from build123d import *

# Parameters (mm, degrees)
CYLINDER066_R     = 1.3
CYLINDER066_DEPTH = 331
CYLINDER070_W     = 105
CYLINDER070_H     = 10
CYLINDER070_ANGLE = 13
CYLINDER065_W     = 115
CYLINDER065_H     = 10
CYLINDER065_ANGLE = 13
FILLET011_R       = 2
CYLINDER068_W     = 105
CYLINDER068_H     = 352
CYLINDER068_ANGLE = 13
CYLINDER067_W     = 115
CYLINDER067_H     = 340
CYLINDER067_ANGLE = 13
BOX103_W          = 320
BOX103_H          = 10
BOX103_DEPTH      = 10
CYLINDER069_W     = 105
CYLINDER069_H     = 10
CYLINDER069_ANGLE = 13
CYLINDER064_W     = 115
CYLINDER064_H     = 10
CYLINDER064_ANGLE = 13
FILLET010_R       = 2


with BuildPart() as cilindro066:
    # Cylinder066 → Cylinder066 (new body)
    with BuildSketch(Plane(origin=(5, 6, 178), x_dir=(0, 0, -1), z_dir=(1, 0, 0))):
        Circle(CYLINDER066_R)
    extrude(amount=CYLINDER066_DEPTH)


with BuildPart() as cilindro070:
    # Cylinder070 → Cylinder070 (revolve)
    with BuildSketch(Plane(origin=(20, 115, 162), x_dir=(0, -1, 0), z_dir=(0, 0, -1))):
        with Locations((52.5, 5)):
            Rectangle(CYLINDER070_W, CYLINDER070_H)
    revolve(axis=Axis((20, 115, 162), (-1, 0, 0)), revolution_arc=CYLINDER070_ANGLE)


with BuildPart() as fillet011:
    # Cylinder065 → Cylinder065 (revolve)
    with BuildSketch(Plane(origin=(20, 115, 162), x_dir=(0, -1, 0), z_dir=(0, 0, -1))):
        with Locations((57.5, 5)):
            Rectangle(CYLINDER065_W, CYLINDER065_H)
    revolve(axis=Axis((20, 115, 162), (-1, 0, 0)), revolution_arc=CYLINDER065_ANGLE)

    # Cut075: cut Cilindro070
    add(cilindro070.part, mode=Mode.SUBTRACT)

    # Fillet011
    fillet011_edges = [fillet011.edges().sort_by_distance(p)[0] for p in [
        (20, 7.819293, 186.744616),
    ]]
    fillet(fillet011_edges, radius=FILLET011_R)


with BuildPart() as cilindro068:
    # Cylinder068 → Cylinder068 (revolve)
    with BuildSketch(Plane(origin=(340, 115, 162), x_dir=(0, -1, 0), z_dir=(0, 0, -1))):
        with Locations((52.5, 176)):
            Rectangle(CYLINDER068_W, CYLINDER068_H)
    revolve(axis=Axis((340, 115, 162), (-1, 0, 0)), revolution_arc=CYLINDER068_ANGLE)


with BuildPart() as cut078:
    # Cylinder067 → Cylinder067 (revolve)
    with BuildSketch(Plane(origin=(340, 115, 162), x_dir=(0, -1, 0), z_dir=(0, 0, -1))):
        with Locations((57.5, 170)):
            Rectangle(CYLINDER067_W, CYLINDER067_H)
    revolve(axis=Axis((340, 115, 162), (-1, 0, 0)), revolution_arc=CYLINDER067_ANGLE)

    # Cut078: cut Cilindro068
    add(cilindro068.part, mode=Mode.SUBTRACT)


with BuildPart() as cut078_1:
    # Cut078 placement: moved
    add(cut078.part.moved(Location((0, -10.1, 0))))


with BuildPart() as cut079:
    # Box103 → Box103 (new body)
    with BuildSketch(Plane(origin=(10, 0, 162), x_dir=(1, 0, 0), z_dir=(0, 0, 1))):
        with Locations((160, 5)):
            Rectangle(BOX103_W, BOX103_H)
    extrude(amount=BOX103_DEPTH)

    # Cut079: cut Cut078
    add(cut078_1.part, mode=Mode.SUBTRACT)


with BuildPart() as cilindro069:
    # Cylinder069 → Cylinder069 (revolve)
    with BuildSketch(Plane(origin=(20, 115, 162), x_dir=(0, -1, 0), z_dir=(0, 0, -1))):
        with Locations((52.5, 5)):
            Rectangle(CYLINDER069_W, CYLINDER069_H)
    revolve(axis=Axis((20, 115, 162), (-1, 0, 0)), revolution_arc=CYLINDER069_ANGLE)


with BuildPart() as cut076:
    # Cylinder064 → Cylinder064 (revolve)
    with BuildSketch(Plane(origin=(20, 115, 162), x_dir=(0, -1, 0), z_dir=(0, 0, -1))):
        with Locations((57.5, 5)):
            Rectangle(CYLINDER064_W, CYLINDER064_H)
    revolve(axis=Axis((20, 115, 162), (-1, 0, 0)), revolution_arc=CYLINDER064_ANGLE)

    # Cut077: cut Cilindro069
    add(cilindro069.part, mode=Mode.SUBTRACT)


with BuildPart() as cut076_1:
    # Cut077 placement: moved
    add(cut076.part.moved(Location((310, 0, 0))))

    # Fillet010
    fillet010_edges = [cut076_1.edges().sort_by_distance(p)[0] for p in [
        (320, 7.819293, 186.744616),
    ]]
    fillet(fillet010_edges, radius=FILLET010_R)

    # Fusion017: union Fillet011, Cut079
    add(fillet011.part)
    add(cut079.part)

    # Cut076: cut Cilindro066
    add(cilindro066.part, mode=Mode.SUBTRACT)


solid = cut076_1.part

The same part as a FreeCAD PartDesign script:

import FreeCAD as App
import Part
import Sketcher

V = App.Vector
Q = App.Units.Quantity


def edges_at(feature, points):
    """Names of the edges that pass closest to the given points."""
    edges = feature.Shape.Edges
    near = lambda p: min(range(len(edges)), key=lambda i: edges[i].distToShape(Part.Vertex(*p))[0])
    return sorted({f"Edge{near(p) + 1}" for p in points})

doc = App.newDocument("Part")
body = doc.addObject("PartDesign::Body", "Body")

sketch1 = doc.addObject("Sketcher::SketchObject", "Sketch")
body.addObject(sketch1)
sketch1.AttachmentSupport = (doc.YZ_Plane, [""])
sketch1.MapMode = "FlatFace"
sketch1.AttachmentOffset = App.Placement(V(0, 0, 5), App.Rotation())
sketch1.addGeometry(Part.Circle(V(6, 178, 0), V(0, 0, 1), 1.3), False)
sketch1.addConstraint(Sketcher.Constraint("Diameter", 0, Q("2.6 mm")))
sketch1.addConstraint(Sketcher.Constraint("DistanceX", -1, 1, 0, 3, Q("6 mm")))
sketch1.addConstraint(Sketcher.Constraint("DistanceY", -1, 1, 0, 3, Q("178 mm")))
pad1 = doc.addObject("PartDesign::Pad", "Pad")
body.addObject(pad1)
pad1.Profile = sketch1
pad1.Length = 331
body2 = doc.addObject("PartDesign::Body", "Body001")

sketch2 = doc.addObject("Sketcher::SketchObject", "Sketch001")
body2.addObject(sketch2)
sketch2.AttachmentSupport = (doc.getObject("XY_Plane001"), [""])
sketch2.MapMode = "FlatFace"
sketch2.AttachmentOffset = App.Placement(V(0, 0, 162), App.Rotation())
sketch2.addGeometry(Part.LineSegment(V(10, 115, 0), V(20, 115, 0)), False)
sketch2.addGeometry(Part.LineSegment(V(20, 115, 0), V(20, 10, 0)), False)
sketch2.addGeometry(Part.LineSegment(V(20, 10, 0), V(10, 10, 0)), False)
sketch2.addGeometry(Part.LineSegment(V(10, 10, 0), V(10, 115, 0)), False)
sketch2.addGeometry(Part.LineSegment(V(20, 115, 0), V(10, 115, 0)), True)
sketch2.addConstraint(Sketcher.Constraint("Coincident", 0, 2, 1, 1))
sketch2.addConstraint(Sketcher.Constraint("Coincident", 1, 2, 2, 1))
sketch2.addConstraint(Sketcher.Constraint("Coincident", 2, 2, 3, 1))
sketch2.addConstraint(Sketcher.Constraint("Coincident", 3, 2, 0, 1))
sketch2.addConstraint(Sketcher.Constraint("Horizontal", 0))
sketch2.addConstraint(Sketcher.Constraint("Vertical", 1))
sketch2.addConstraint(Sketcher.Constraint("Horizontal", 2))
sketch2.addConstraint(Sketcher.Constraint("Vertical", 3))
sketch2.addConstraint(Sketcher.Constraint("Horizontal", 4))
sketch2.addConstraint(Sketcher.Constraint("Coincident", 4, 1, 0, 2))
sketch2.addConstraint(Sketcher.Constraint("Vertical", 2, 2, 4, 2))
sketch2.addConstraint(Sketcher.Constraint("DistanceX", 0, 1, 0, 2, Q("10 mm")))
sketch2.addConstraint(Sketcher.Constraint("DistanceY", 1, 2, 1, 1, Q("105 mm")))
sketch2.addConstraint(Sketcher.Constraint("DistanceX", -1, 1, 0, 2, Q("20 mm")))
sketch2.addConstraint(Sketcher.Constraint("DistanceY", -1, 1, 0, 2, Q("115 mm")))
revolution = doc.addObject("PartDesign::Revolution", "Revolution")
body2.addObject(revolution)
revolution.Profile = sketch2
revolution.ReferenceAxis = (sketch2, ["Axis0"])
revolution.Angle = 13
body3 = doc.addObject("PartDesign::Body", "Body002")

sketch3 = doc.addObject("Sketcher::SketchObject", "Sketch002")
body3.addObject(sketch3)
sketch3.AttachmentSupport = (doc.getObject("XY_Plane002"), [""])
sketch3.MapMode = "FlatFace"
sketch3.AttachmentOffset = App.Placement(V(0, 0, 162), App.Rotation())
sketch3.addGeometry(Part.LineSegment(V(10, 115, 0), V(20, 115, 0)), False)
sketch3.addGeometry(Part.LineSegment(V(20, 115, 0), V(20, 0, 0)), False)
sketch3.addGeometry(Part.LineSegment(V(20, 0, 0), V(10, 0, 0)), False)
sketch3.addGeometry(Part.LineSegment(V(10, 0, 0), V(10, 115, 0)), False)
sketch3.addGeometry(Part.LineSegment(V(20, 115, 0), V(10, 115, 0)), True)
sketch3.addConstraint(Sketcher.Constraint("Coincident", 0, 2, 1, 1))
sketch3.addConstraint(Sketcher.Constraint("Coincident", 1, 2, 2, 1))
sketch3.addConstraint(Sketcher.Constraint("Coincident", 2, 2, 3, 1))
sketch3.addConstraint(Sketcher.Constraint("Coincident", 3, 2, 0, 1))
sketch3.addConstraint(Sketcher.Constraint("Horizontal", 0))
sketch3.addConstraint(Sketcher.Constraint("Vertical", 1))
sketch3.addConstraint(Sketcher.Constraint("Horizontal", 2))
sketch3.addConstraint(Sketcher.Constraint("Vertical", 3))
sketch3.addConstraint(Sketcher.Constraint("Horizontal", 4))
sketch3.addConstraint(Sketcher.Constraint("Coincident", 4, 1, 0, 2))
sketch3.addConstraint(Sketcher.Constraint("PointOnObject", 1, 2, -1))
sketch3.addConstraint(Sketcher.Constraint("Vertical", 2, 2, 4, 2))
sketch3.addConstraint(Sketcher.Constraint("DistanceX", 0, 1, 0, 2, Q("10 mm")))
sketch3.addConstraint(Sketcher.Constraint("DistanceY", 1, 2, 1, 1, Q("115 mm")))
sketch3.addConstraint(Sketcher.Constraint("DistanceX", -1, 1, 0, 2, Q("20 mm")))
revolution2 = doc.addObject("PartDesign::Revolution", "Revolution001")
body3.addObject(revolution2)
revolution2.Profile = sketch3
revolution2.ReferenceAxis = (sketch3, ["Axis0"])
revolution2.Angle = 13
doc.recompute()

boolean = doc.addObject("PartDesign::Boolean", "Boolean")
body3.addObject(boolean)
boolean.Type = "Cut"
boolean.addObjects([body2])
doc.recompute()

fillet = doc.addObject("PartDesign::Fillet", "Fillet")
body3.addObject(fillet)
fillet.Base = (boolean, edges_at(boolean, [(20, 7.819, 186.745)]))
fillet.Radius = 2
body4 = doc.addObject("PartDesign::Body", "Body003")

sketch4 = doc.addObject("Sketcher::SketchObject", "Sketch003")
body4.addObject(sketch4)
sketch4.AttachmentSupport = (doc.getObject("XY_Plane003"), [""])
sketch4.MapMode = "FlatFace"
sketch4.AttachmentOffset = App.Placement(V(0, 0, 162), App.Rotation())
sketch4.addGeometry(Part.LineSegment(V(-12, 115, 0), V(340, 115, 0)), False)
sketch4.addGeometry(Part.LineSegment(V(340, 115, 0), V(340, 10, 0)), False)
sketch4.addGeometry(Part.LineSegment(V(340, 10, 0), V(-12, 10, 0)), False)
sketch4.addGeometry(Part.LineSegment(V(-12, 10, 0), V(-12, 115, 0)), False)
sketch4.addGeometry(Part.LineSegment(V(340, 115, 0), V(-12, 115, 0)), True)
sketch4.addConstraint(Sketcher.Constraint("Coincident", 0, 2, 1, 1))
sketch4.addConstraint(Sketcher.Constraint("Coincident", 1, 2, 2, 1))
sketch4.addConstraint(Sketcher.Constraint("Coincident", 2, 2, 3, 1))
sketch4.addConstraint(Sketcher.Constraint("Coincident", 3, 2, 0, 1))
sketch4.addConstraint(Sketcher.Constraint("Horizontal", 0))
sketch4.addConstraint(Sketcher.Constraint("Vertical", 1))
sketch4.addConstraint(Sketcher.Constraint("Horizontal", 2))
sketch4.addConstraint(Sketcher.Constraint("Vertical", 3))
sketch4.addConstraint(Sketcher.Constraint("Horizontal", 4))
sketch4.addConstraint(Sketcher.Constraint("Coincident", 4, 1, 0, 2))
sketch4.addConstraint(Sketcher.Constraint("Vertical", 2, 2, 4, 2))
sketch4.addConstraint(Sketcher.Constraint("DistanceX", 0, 1, 0, 2, Q("352 mm")))
sketch4.addConstraint(Sketcher.Constraint("DistanceY", 1, 2, 1, 1, Q("105 mm")))
sketch4.addConstraint(Sketcher.Constraint("DistanceX", -1, 1, 0, 2, Q("340 mm")))
sketch4.addConstraint(Sketcher.Constraint("DistanceY", -1, 1, 0, 2, Q("115 mm")))
revolution3 = doc.addObject("PartDesign::Revolution", "Revolution002")
body4.addObject(revolution3)
revolution3.Profile = sketch4
revolution3.ReferenceAxis = (sketch4, ["Axis0"])
revolution3.Angle = 13
body5 = doc.addObject("PartDesign::Body", "Body004")

sketch5 = doc.addObject("Sketcher::SketchObject", "Sketch004")
body5.addObject(sketch5)
sketch5.AttachmentSupport = (doc.getObject("XY_Plane004"), [""])
sketch5.MapMode = "FlatFace"
sketch5.AttachmentOffset = App.Placement(V(0, 0, 162), App.Rotation())
sketch5.addGeometry(Part.LineSegment(V(0, 115, 0), V(340, 115, 0)), False)
sketch5.addGeometry(Part.LineSegment(V(340, 115, 0), V(340, 0, 0)), False)
sketch5.addGeometry(Part.LineSegment(V(340, 0, 0), V(0, 0, 0)), False)
sketch5.addGeometry(Part.LineSegment(V(0, 0, 0), V(0, 115, 0)), False)
sketch5.addGeometry(Part.LineSegment(V(340, 115, 0), V(0, 115, 0)), True)
sketch5.addConstraint(Sketcher.Constraint("Coincident", 0, 2, 1, 1))
sketch5.addConstraint(Sketcher.Constraint("Coincident", 1, 2, 2, 1))
sketch5.addConstraint(Sketcher.Constraint("Coincident", 2, 2, 3, 1))
sketch5.addConstraint(Sketcher.Constraint("Coincident", 3, 2, 0, 1))
sketch5.addConstraint(Sketcher.Constraint("Horizontal", 0))
sketch5.addConstraint(Sketcher.Constraint("Vertical", 1))
sketch5.addConstraint(Sketcher.Constraint("Horizontal", 2))
sketch5.addConstraint(Sketcher.Constraint("Vertical", 3))
sketch5.addConstraint(Sketcher.Constraint("Horizontal", 4))
sketch5.addConstraint(Sketcher.Constraint("Coincident", 2, 2, -1, 1))
sketch5.addConstraint(Sketcher.Constraint("Coincident", 4, 1, 0, 2))
sketch5.addConstraint(Sketcher.Constraint("PointOnObject", 4, 2, -2))
sketch5.addConstraint(Sketcher.Constraint("DistanceX", 0, 1, 0, 2, Q("340 mm")))
sketch5.addConstraint(Sketcher.Constraint("DistanceY", 1, 2, 1, 1, Q("115 mm")))
revolution4 = doc.addObject("PartDesign::Revolution", "Revolution003")
body5.addObject(revolution4)
revolution4.Profile = sketch5
revolution4.ReferenceAxis = (sketch5, ["Axis0"])
revolution4.Angle = 13
doc.recompute()

boolean2 = doc.addObject("PartDesign::Boolean", "Boolean001")
body5.addObject(boolean2)
boolean2.Type = "Cut"
boolean2.addObjects([body4])
body6 = doc.addObject("PartDesign::Body", "Body005")
doc.recompute()

body5.Placement = App.Placement(V(0, -10.1, 0), App.Rotation(V(0, 0, 1), 0))
boolean3 = doc.addObject("PartDesign::Boolean", "Boolean002")
body6.addObject(boolean3)
boolean3.Type = "Fuse"
boolean3.addObjects([body5])
body7 = doc.addObject("PartDesign::Body", "Body006")

sketch6 = doc.addObject("Sketcher::SketchObject", "Sketch005")
body7.addObject(sketch6)
sketch6.AttachmentSupport = (doc.getObject("XY_Plane006"), [""])
sketch6.MapMode = "FlatFace"
sketch6.AttachmentOffset = App.Placement(V(0, 0, 162), App.Rotation())
sketch6.addGeometry(Part.LineSegment(V(10, 10, 0), V(10, 0, 0)), False)
sketch6.addGeometry(Part.LineSegment(V(10, 0, 0), V(330, 0, 0)), False)
sketch6.addGeometry(Part.LineSegment(V(330, 0, 0), V(330, 10, 0)), False)
sketch6.addGeometry(Part.LineSegment(V(330, 10, 0), V(10, 10, 0)), False)
sketch6.addConstraint(Sketcher.Constraint("Coincident", 0, 2, 1, 1))
sketch6.addConstraint(Sketcher.Constraint("Coincident", 1, 2, 2, 1))
sketch6.addConstraint(Sketcher.Constraint("Coincident", 2, 2, 3, 1))
sketch6.addConstraint(Sketcher.Constraint("Coincident", 3, 2, 0, 1))
sketch6.addConstraint(Sketcher.Constraint("Vertical", 0))
sketch6.addConstraint(Sketcher.Constraint("Horizontal", 1))
sketch6.addConstraint(Sketcher.Constraint("Vertical", 2))
sketch6.addConstraint(Sketcher.Constraint("Horizontal", 3))
sketch6.addConstraint(Sketcher.Constraint("PointOnObject", 0, 2, -1))
sketch6.addConstraint(Sketcher.Constraint("DistanceX", 1, 1, 1, 2, Q("320 mm")))
sketch6.addConstraint(Sketcher.Constraint("DistanceY", 0, 2, 0, 1, Q("10 mm")))
sketch6.addConstraint(Sketcher.Constraint("DistanceX", -1, 1, 0, 2, Q("10 mm")))
pad2 = doc.addObject("PartDesign::Pad", "Pad001")
body7.addObject(pad2)
pad2.Profile = sketch6
pad2.Length = 10
doc.recompute()

boolean4 = doc.addObject("PartDesign::Boolean", "Boolean003")
body7.addObject(boolean4)
boolean4.Type = "Cut"
boolean4.addObjects([body6])
body8 = doc.addObject("PartDesign::Body", "Body007")

sketch7 = doc.addObject("Sketcher::SketchObject", "Sketch006")
body8.addObject(sketch7)
sketch7.AttachmentSupport = (doc.getObject("XY_Plane007"), [""])
sketch7.MapMode = "FlatFace"
sketch7.AttachmentOffset = App.Placement(V(0, 0, 162), App.Rotation())
sketch7.addGeometry(Part.LineSegment(V(10, 115, 0), V(20, 115, 0)), False)
sketch7.addGeometry(Part.LineSegment(V(20, 115, 0), V(20, 10, 0)), False)
sketch7.addGeometry(Part.LineSegment(V(20, 10, 0), V(10, 10, 0)), False)
sketch7.addGeometry(Part.LineSegment(V(10, 10, 0), V(10, 115, 0)), False)
sketch7.addGeometry(Part.LineSegment(V(20, 115, 0), V(10, 115, 0)), True)
sketch7.addConstraint(Sketcher.Constraint("Coincident", 0, 2, 1, 1))
sketch7.addConstraint(Sketcher.Constraint("Coincident", 1, 2, 2, 1))
sketch7.addConstraint(Sketcher.Constraint("Coincident", 2, 2, 3, 1))
sketch7.addConstraint(Sketcher.Constraint("Coincident", 3, 2, 0, 1))
sketch7.addConstraint(Sketcher.Constraint("Horizontal", 0))
sketch7.addConstraint(Sketcher.Constraint("Vertical", 1))
sketch7.addConstraint(Sketcher.Constraint("Horizontal", 2))
sketch7.addConstraint(Sketcher.Constraint("Vertical", 3))
sketch7.addConstraint(Sketcher.Constraint("Horizontal", 4))
sketch7.addConstraint(Sketcher.Constraint("Coincident", 4, 1, 0, 2))
sketch7.addConstraint(Sketcher.Constraint("Vertical", 2, 2, 4, 2))
sketch7.addConstraint(Sketcher.Constraint("DistanceX", 0, 1, 0, 2, Q("10 mm")))
sketch7.addConstraint(Sketcher.Constraint("DistanceY", 1, 2, 1, 1, Q("105 mm")))
sketch7.addConstraint(Sketcher.Constraint("DistanceX", -1, 1, 0, 2, Q("20 mm")))
sketch7.addConstraint(Sketcher.Constraint("DistanceY", -1, 1, 0, 2, Q("115 mm")))
revolution5 = doc.addObject("PartDesign::Revolution", "Revolution004")
body8.addObject(revolution5)
revolution5.Profile = sketch7
revolution5.ReferenceAxis = (sketch7, ["Axis0"])
revolution5.Angle = 13
body9 = doc.addObject("PartDesign::Body", "Body008")

sketch8 = doc.addObject("Sketcher::SketchObject", "Sketch007")
body9.addObject(sketch8)
sketch8.AttachmentSupport = (doc.getObject("XY_Plane008"), [""])
sketch8.MapMode = "FlatFace"
sketch8.AttachmentOffset = App.Placement(V(0, 0, 162), App.Rotation())
sketch8.addGeometry(Part.LineSegment(V(10, 115, 0), V(20, 115, 0)), False)
sketch8.addGeometry(Part.LineSegment(V(20, 115, 0), V(20, 0, 0)), False)
sketch8.addGeometry(Part.LineSegment(V(20, 0, 0), V(10, 0, 0)), False)
sketch8.addGeometry(Part.LineSegment(V(10, 0, 0), V(10, 115, 0)), False)
sketch8.addGeometry(Part.LineSegment(V(20, 115, 0), V(10, 115, 0)), True)
sketch8.addConstraint(Sketcher.Constraint("Coincident", 0, 2, 1, 1))
sketch8.addConstraint(Sketcher.Constraint("Coincident", 1, 2, 2, 1))
sketch8.addConstraint(Sketcher.Constraint("Coincident", 2, 2, 3, 1))
sketch8.addConstraint(Sketcher.Constraint("Coincident", 3, 2, 0, 1))
sketch8.addConstraint(Sketcher.Constraint("Horizontal", 0))
sketch8.addConstraint(Sketcher.Constraint("Vertical", 1))
sketch8.addConstraint(Sketcher.Constraint("Horizontal", 2))
sketch8.addConstraint(Sketcher.Constraint("Vertical", 3))
sketch8.addConstraint(Sketcher.Constraint("Horizontal", 4))
sketch8.addConstraint(Sketcher.Constraint("Coincident", 4, 1, 0, 2))
sketch8.addConstraint(Sketcher.Constraint("PointOnObject", 1, 2, -1))
sketch8.addConstraint(Sketcher.Constraint("Vertical", 2, 2, 4, 2))
sketch8.addConstraint(Sketcher.Constraint("DistanceX", 0, 1, 0, 2, Q("10 mm")))
sketch8.addConstraint(Sketcher.Constraint("DistanceY", 1, 2, 1, 1, Q("115 mm")))
sketch8.addConstraint(Sketcher.Constraint("DistanceX", -1, 1, 0, 2, Q("20 mm")))
revolution6 = doc.addObject("PartDesign::Revolution", "Revolution005")
body9.addObject(revolution6)
revolution6.Profile = sketch8
revolution6.ReferenceAxis = (sketch8, ["Axis0"])
revolution6.Angle = 13
doc.recompute()

boolean5 = doc.addObject("PartDesign::Boolean", "Boolean004")
body9.addObject(boolean5)
boolean5.Type = "Cut"
boolean5.addObjects([body8])
body10 = doc.addObject("PartDesign::Body", "Body009")
body10.AllowCompound = True
doc.recompute()

body9.Placement = App.Placement(V(310, 0, 0), App.Rotation(V(0, 0, 1), 0))
boolean6 = doc.addObject("PartDesign::Boolean", "Boolean005")
body10.addObject(boolean6)
boolean6.Type = "Fuse"
boolean6.addObjects([body9])
doc.recompute()

fillet2 = doc.addObject("PartDesign::Fillet", "Fillet001")
body10.addObject(fillet2)
fillet2.Base = (boolean6, edges_at(boolean6, [(320, 7.819, 186.745)]))
fillet2.Radius = 2
doc.recompute()

boolean7 = doc.addObject("PartDesign::Boolean", "Boolean006")
body10.addObject(boolean7)
boolean7.Type = "Fuse"
boolean7.addObjects([body3])
doc.recompute()

boolean8 = doc.addObject("PartDesign::Boolean", "Boolean007")
body10.addObject(boolean8)
boolean8.Type = "Fuse"
boolean8.addObjects([body7])
doc.recompute()

boolean9 = doc.addObject("PartDesign::Boolean", "Boolean008")
body10.addObject(boolean9)
boolean9.Type = "Cut"
boolean9.addObjects([body])

doc.recompute()
